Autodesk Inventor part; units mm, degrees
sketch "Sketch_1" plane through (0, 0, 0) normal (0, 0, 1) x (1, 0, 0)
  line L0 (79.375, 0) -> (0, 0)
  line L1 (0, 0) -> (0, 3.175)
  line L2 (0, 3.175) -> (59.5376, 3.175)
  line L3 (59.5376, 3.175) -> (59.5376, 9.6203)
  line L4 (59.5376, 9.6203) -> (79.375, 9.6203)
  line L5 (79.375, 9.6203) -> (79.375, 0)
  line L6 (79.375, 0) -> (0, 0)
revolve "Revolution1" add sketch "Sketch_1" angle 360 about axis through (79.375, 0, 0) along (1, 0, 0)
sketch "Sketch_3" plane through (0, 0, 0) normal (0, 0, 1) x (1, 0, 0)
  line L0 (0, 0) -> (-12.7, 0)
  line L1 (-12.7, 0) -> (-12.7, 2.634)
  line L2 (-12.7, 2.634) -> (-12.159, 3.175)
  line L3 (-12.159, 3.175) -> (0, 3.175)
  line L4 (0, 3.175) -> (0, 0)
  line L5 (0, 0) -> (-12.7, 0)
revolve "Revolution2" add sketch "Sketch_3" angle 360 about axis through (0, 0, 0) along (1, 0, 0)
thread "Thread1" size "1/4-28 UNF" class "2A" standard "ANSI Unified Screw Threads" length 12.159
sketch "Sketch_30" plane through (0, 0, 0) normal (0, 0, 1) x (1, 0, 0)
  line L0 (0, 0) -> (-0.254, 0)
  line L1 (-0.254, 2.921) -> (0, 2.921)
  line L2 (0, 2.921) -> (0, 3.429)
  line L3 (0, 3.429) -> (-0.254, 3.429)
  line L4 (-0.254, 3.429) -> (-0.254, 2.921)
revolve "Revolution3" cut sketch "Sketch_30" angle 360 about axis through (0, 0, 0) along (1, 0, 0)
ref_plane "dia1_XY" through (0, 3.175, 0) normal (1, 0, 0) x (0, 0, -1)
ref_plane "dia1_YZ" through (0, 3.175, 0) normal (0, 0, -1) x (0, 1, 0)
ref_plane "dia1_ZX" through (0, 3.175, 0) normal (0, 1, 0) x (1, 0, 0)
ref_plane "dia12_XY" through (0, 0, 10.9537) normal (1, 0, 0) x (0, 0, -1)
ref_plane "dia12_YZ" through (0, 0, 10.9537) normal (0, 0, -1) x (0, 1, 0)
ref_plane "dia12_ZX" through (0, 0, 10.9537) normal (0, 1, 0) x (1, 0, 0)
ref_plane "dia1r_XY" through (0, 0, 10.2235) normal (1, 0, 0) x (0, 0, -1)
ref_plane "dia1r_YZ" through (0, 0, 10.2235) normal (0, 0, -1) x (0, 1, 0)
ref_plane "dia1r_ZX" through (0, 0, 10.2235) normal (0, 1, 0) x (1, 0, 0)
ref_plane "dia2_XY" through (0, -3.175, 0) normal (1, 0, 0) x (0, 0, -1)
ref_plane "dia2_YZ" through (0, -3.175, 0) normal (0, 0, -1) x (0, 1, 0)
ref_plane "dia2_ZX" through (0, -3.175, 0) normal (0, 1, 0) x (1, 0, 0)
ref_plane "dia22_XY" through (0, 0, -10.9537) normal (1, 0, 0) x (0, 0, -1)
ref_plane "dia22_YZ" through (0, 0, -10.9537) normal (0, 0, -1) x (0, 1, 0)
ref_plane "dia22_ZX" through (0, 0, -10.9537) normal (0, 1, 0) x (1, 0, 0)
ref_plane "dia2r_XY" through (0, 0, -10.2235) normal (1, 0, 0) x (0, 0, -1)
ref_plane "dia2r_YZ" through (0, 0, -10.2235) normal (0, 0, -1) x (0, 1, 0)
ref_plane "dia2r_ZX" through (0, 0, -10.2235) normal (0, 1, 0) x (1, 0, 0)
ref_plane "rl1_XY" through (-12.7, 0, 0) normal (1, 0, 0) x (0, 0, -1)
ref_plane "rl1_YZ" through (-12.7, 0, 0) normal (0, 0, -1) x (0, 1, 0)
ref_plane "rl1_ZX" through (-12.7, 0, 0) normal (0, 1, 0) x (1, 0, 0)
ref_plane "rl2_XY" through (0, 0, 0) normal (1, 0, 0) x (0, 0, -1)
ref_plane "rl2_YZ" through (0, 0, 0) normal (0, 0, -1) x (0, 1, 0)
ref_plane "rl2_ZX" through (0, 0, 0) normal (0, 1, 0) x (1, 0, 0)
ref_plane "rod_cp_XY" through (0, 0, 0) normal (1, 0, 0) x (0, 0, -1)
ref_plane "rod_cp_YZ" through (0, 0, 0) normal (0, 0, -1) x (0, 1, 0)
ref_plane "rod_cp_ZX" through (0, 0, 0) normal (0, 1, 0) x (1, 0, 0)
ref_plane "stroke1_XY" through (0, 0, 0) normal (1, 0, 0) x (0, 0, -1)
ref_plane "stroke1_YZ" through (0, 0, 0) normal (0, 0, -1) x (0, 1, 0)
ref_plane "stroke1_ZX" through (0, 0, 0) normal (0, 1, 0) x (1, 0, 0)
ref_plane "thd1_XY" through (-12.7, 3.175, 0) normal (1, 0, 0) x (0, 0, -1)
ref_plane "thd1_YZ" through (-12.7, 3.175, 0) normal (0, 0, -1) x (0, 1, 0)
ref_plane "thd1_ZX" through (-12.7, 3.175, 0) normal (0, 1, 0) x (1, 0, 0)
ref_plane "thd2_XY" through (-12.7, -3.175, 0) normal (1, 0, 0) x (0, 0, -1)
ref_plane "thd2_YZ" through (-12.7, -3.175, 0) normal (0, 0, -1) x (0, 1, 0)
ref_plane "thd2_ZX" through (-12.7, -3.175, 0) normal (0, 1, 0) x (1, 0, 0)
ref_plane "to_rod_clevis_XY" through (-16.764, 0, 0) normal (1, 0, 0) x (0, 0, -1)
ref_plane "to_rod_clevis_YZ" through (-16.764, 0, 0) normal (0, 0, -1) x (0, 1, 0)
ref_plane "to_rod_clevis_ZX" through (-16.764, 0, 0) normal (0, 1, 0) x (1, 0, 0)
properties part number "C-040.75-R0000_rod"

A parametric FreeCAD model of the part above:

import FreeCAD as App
import Part
import Sketcher
Q = App.Units.Quantity


def add_polygon(sketch, points):
    """Adds a closed chain of lines whose ends are joined by coincident constraints."""
    first, n = sketch.GeometryCount, len(points)
    for a, b in zip(points, points[1:] + points[:1]):
        sketch.addGeometry(Part.LineSegment(App.Vector(*a, 0), App.Vector(*b, 0)), False)
    for i in range(n):
        sketch.addConstraint(Sketcher.Constraint("Coincident", first + i, 2, first + (i + 1) % n, 1))

doc = App.newDocument("Part")
body = doc.addObject("PartDesign::Body", "Body")

# Sketch on XY plane
sketch1 = doc.addObject("Sketcher::SketchObject", "Sketch")
body.addObject(sketch1)
sketch1.AttachmentSupport = (doc.XY_Plane, [""])
sketch1.MapMode = "FlatFace"
add_polygon(sketch1, [(0, 0), (79.4, 0), (79.4, 9.6), (59.5, 9.6), (59.5, 3.2), (0, 3.2)])  # lines 0-5
sketch1.addConstraint([
    Sketcher.Constraint("Horizontal", 0),
    Sketcher.Constraint("Vertical", 1),
    Sketcher.Constraint("Horizontal", 2),
    Sketcher.Constraint("Vertical", 3),
    Sketcher.Constraint("Horizontal", 4),
    Sketcher.Constraint("Vertical", 5),
    Sketcher.Constraint("Coincident", 5, 2, -1, 1),
    Sketcher.Constraint("DistanceX", 0, 1, 0, 2, Q("3.125 in")),
    Sketcher.Constraint("DistanceX", 2, 2, 2, 1, Q("0.781 in")),
    Sketcher.Constraint("DistanceY", 5, 2, 5, 1, Q("0.125 in")),
    Sketcher.Constraint("DistanceY", 1, 1, 1, 2, Q("9.6203 mm")),
])
revolution = doc.addObject("PartDesign::Revolution", "Revolution")
body.addObject(revolution)
revolution.Profile = sketch1
revolution.ReferenceAxis = (sketch1, ["H_Axis"])
revolution.Angle = 360

# Sketch on XY plane
sketch2 = doc.addObject("Sketcher::SketchObject", "Sketch001")
body.addObject(sketch2)
sketch2.AttachmentSupport = (doc.XY_Plane, [""])
sketch2.MapMode = "FlatFace"
add_polygon(sketch2, [(-12.7, 0), (0, 0), (0, 3.2), (-12.2, 3.2), (-12.7, 2.6)])  # lines 0-4
sketch2.addConstraint([
    Sketcher.Constraint("Horizontal", 0),
    Sketcher.Constraint("Vertical", 1),
    Sketcher.Constraint("Horizontal", 2),
    Sketcher.Constraint("Vertical", 4),
    Sketcher.Constraint("Coincident", 0, 2, -1, 1),
    Sketcher.Constraint("DistanceX", 0, 1, 0, 2, Q("0.5 in")),
    Sketcher.Constraint("Angle", 3, Q("-135 deg")),
    Sketcher.Constraint("DistanceY", 1, 1, 1, 2, Q("0.125 in")),
    Sketcher.Constraint("DistanceX", 2, 2, 2, 1, Q("0.4787 in")),
])
revolution2 = doc.addObject("PartDesign::Revolution", "Revolution001")
body.addObject(revolution2)
revolution2.Profile = sketch2
revolution2.ReferenceAxis = (sketch2, ["H_Axis"])
revolution2.Angle = 360

# Sketch on XY plane
sketch3 = doc.addObject("Sketcher::SketchObject", "Sketch002")
body.addObject(sketch3)
sketch3.AttachmentSupport = (doc.XY_Plane, [""])
sketch3.MapMode = "FlatFace"
add_polygon(sketch3, [(-0.25, 3.43), (-0.25, 2.92), (0, 2.92), (0, 3.43)])  # lines 0-3
sketch3.addConstraint([
    Sketcher.Constraint("Vertical", 0),
    Sketcher.Constraint("Horizontal", 1),
    Sketcher.Constraint("Vertical", 2),
    Sketcher.Constraint("Horizontal", 3),
    Sketcher.Constraint("PointOnObject", 1, 2, -2),
    Sketcher.Constraint("DistanceX", 1, 1, 1, 2, Q("0.01 in")),
    Sketcher.Constraint("DistanceY", 0, 2, 0, 1, Q("0.02 in")),
    Sketcher.Constraint("DistanceY", -1, 1, 0, 2, Q("0.115 in")),
])
groove = doc.addObject("PartDesign::Groove", "Groove")
body.addObject(groove)
groove.Profile = sketch3
groove.ReferenceAxis = (sketch3, ["H_Axis"])
groove.Angle = 360

doc.recompute()
